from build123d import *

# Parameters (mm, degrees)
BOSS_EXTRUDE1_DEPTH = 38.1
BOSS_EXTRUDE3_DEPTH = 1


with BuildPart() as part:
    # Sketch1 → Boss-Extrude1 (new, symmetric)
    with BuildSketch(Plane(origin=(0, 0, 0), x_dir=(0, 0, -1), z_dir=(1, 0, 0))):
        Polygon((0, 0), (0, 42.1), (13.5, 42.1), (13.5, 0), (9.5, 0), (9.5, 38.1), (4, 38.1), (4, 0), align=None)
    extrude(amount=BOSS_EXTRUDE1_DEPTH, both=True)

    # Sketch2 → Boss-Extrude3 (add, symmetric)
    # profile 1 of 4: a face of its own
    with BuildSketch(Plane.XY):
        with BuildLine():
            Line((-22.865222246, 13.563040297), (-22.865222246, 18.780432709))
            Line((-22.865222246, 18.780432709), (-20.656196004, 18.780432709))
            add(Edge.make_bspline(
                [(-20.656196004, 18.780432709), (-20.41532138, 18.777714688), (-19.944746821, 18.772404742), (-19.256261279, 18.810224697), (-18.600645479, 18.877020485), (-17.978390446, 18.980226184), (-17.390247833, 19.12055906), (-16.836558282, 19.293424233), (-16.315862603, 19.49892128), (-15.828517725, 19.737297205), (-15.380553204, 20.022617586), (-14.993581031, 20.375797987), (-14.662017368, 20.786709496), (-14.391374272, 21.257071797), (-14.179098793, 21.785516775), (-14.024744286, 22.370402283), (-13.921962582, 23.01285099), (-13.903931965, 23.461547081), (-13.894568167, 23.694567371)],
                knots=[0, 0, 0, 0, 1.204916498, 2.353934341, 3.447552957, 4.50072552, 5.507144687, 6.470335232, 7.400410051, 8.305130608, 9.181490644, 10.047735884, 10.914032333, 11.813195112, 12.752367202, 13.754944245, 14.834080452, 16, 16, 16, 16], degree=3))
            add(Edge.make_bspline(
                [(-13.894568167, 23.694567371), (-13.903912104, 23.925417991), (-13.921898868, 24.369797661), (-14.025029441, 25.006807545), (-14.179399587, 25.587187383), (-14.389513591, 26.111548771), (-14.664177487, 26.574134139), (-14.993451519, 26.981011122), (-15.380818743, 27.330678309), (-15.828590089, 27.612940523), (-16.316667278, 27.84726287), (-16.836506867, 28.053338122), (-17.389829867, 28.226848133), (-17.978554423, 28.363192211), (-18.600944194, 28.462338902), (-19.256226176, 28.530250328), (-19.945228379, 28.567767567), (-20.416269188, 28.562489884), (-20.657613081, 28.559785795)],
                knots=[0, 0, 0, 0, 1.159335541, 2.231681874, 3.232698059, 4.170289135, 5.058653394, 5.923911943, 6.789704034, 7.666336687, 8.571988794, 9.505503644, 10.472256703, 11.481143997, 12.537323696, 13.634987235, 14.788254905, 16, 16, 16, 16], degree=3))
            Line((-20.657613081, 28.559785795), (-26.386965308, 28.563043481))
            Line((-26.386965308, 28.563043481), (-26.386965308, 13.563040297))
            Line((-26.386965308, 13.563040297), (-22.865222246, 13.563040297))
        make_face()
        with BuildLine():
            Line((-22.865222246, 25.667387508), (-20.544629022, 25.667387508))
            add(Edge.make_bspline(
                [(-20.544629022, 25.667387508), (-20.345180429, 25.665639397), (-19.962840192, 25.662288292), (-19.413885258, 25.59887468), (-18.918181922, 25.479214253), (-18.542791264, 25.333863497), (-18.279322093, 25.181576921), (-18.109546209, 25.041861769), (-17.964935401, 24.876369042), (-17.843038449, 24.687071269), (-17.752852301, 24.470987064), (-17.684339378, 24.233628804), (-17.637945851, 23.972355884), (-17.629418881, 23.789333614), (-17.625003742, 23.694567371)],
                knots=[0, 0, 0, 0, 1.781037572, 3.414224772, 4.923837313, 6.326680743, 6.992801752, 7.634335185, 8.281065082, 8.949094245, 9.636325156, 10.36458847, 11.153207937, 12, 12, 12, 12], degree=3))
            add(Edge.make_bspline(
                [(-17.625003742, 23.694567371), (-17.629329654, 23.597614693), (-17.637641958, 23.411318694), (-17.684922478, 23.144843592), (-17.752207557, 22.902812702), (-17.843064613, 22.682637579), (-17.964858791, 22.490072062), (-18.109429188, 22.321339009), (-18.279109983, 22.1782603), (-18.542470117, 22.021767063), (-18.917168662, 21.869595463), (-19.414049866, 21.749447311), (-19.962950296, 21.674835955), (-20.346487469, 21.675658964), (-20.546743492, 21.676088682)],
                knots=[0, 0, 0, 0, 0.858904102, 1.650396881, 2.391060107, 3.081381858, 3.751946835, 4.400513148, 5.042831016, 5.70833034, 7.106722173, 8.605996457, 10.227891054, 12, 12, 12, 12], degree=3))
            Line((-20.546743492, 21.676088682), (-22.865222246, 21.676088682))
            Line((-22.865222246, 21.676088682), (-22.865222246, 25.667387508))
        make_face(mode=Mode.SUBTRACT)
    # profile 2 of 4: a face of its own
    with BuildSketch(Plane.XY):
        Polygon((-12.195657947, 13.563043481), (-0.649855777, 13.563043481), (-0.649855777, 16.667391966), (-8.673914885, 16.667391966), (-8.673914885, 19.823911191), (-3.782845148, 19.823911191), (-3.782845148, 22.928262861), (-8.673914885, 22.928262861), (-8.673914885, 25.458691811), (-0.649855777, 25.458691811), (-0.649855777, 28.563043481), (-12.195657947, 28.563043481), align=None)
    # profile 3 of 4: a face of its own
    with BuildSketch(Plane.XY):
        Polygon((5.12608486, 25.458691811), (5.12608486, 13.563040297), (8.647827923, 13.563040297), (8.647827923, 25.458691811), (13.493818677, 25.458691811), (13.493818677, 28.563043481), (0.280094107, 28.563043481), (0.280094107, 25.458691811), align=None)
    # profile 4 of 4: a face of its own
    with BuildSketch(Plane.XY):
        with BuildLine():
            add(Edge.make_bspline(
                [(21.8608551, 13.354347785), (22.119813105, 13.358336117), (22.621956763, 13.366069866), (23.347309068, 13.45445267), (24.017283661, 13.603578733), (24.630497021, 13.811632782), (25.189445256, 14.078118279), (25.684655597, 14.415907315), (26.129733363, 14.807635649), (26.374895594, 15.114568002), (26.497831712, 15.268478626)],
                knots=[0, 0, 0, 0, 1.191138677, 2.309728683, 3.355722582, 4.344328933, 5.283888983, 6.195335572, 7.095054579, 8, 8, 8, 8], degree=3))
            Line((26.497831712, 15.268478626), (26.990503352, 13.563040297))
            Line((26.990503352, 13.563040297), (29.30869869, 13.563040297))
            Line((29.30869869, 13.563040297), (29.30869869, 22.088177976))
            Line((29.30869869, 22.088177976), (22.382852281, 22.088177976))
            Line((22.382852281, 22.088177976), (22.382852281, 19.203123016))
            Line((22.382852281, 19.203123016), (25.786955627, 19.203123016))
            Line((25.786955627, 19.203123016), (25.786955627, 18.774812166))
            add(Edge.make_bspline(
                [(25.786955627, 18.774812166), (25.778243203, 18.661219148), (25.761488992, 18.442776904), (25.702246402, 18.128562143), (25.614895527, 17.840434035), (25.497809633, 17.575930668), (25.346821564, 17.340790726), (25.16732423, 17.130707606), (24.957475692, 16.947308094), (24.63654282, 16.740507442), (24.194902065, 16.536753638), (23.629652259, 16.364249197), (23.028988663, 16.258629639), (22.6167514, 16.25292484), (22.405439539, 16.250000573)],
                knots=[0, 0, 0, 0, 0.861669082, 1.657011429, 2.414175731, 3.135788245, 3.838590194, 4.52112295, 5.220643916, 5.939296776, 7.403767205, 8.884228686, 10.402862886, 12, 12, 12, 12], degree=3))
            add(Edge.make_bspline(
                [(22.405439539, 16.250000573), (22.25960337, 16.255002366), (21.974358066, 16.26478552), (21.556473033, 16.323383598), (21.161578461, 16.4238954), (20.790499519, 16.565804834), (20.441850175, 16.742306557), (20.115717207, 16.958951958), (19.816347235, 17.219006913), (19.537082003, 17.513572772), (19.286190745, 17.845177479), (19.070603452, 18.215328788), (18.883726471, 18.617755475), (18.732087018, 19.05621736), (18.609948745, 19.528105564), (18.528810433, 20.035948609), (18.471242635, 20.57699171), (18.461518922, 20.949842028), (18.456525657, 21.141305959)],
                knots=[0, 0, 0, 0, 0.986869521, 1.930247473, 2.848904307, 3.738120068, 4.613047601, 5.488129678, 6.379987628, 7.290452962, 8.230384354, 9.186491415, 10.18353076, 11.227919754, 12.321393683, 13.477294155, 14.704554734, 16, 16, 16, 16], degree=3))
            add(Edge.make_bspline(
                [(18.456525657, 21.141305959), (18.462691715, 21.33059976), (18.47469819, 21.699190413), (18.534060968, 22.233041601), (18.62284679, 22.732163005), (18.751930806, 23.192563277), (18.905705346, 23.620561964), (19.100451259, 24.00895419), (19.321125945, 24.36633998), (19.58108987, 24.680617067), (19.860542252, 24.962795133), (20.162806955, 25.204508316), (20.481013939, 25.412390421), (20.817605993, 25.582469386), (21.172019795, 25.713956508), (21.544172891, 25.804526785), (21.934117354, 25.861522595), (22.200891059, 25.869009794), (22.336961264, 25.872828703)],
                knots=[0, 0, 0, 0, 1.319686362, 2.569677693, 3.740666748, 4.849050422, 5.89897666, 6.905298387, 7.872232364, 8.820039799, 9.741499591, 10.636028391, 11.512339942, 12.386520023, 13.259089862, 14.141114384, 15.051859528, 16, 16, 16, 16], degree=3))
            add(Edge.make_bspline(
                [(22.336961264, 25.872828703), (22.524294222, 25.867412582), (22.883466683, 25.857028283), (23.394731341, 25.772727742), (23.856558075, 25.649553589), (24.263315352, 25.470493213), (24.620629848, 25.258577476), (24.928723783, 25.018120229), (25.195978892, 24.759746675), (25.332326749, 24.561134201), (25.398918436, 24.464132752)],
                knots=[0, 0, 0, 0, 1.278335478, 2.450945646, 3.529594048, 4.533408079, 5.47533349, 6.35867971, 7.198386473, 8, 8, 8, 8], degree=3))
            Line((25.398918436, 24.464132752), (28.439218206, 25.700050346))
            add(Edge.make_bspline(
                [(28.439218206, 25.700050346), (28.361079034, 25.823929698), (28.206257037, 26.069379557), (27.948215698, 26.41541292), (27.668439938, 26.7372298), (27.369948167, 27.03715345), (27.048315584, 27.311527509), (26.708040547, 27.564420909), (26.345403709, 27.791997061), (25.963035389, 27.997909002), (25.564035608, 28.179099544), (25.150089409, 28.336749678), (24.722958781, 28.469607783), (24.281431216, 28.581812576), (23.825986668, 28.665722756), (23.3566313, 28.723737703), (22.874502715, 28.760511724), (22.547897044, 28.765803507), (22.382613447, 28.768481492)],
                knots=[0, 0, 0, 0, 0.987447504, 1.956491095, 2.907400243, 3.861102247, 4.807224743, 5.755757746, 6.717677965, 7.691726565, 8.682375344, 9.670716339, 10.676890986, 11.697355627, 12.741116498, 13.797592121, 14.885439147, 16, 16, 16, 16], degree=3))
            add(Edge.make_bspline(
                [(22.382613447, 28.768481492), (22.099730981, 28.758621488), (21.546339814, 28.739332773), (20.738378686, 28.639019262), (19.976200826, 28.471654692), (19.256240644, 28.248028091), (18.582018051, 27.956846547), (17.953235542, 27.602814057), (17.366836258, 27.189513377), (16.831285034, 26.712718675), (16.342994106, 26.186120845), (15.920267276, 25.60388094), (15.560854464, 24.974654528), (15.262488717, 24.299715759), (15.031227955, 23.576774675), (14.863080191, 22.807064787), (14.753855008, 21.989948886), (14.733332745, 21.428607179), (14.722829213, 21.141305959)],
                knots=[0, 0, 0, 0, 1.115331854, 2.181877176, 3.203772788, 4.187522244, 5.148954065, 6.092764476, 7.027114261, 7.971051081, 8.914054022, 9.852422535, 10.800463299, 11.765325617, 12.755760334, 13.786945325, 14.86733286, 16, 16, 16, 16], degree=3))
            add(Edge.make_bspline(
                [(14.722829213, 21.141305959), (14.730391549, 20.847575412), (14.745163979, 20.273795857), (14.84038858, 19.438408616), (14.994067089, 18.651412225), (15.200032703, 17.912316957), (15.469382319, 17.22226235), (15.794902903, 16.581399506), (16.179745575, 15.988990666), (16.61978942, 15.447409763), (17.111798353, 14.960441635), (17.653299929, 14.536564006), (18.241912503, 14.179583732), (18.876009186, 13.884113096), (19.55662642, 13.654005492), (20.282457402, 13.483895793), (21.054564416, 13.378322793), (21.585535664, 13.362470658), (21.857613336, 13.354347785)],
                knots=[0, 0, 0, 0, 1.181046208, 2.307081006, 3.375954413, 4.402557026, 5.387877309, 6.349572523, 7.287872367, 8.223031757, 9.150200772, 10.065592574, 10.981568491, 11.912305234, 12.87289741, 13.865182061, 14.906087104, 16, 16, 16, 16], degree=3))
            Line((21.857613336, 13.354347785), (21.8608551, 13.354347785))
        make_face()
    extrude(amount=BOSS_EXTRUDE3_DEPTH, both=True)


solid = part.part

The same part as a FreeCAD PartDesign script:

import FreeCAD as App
import Part
import Sketcher
from FreeCAD import Vector

doc = App.newDocument("Part")
body = doc.addObject("PartDesign::Body", "Body")

sketch1 = body.newObject("Sketcher::SketchObject", "Sketch")
sketch1.AttachmentSupport = (doc.getObject("YZ_Plane"), [""])
sketch1.MapMode = "FlatFace"
sketch1.addGeometry(Part.LineSegment(Vector(42.1, 0, 0), Vector(0, 0, 0)), False)
sketch1.addGeometry(Part.LineSegment(Vector(0, 0, 0), Vector(0, -4, 0)), False)
sketch1.addGeometry(Part.LineSegment(Vector(0, -4, 0), Vector(38.1, -4, 0)), False)
sketch1.addGeometry(Part.LineSegment(Vector(38.1, -4, 0), Vector(38.1, -9.5, 0)), False)
sketch1.addGeometry(Part.LineSegment(Vector(38.1, -9.5, 0), Vector(0, -9.5, 0)), False)
sketch1.addGeometry(Part.LineSegment(Vector(0, -9.5, 0), Vector(0, -13.5, 0)), False)
sketch1.addGeometry(Part.LineSegment(Vector(0, -13.5, 0), Vector(42.1, -13.5, 0)), False)
sketch1.addGeometry(Part.LineSegment(Vector(42.1, -13.5, 0), Vector(42.1, 0, 0)), False)
sketch1.addConstraint(Sketcher.Constraint("Coincident", 0, 2, 1, 1))
sketch1.addConstraint(Sketcher.Constraint("Coincident", 1, 2, 2, 1))
sketch1.addConstraint(Sketcher.Constraint("Coincident", 2, 2, 3, 1))
sketch1.addConstraint(Sketcher.Constraint("Coincident", 3, 2, 4, 1))
sketch1.addConstraint(Sketcher.Constraint("Coincident", 4, 2, 5, 1))
sketch1.addConstraint(Sketcher.Constraint("Coincident", 5, 2, 6, 1))
sketch1.addConstraint(Sketcher.Constraint("Coincident", 6, 2, 7, 1))
sketch1.addConstraint(Sketcher.Constraint("Coincident", 7, 2, 0, 1))
sketch1.addConstraint(Sketcher.Constraint("Horizontal", 0))
sketch1.addConstraint(Sketcher.Constraint("Vertical", 1))
sketch1.addConstraint(Sketcher.Constraint("Horizontal", 2))
sketch1.addConstraint(Sketcher.Constraint("Vertical", 3))
sketch1.addConstraint(Sketcher.Constraint("Horizontal", 4))
sketch1.addConstraint(Sketcher.Constraint("Vertical", 5))
sketch1.addConstraint(Sketcher.Constraint("Horizontal", 6))
sketch1.addConstraint(Sketcher.Constraint("Vertical", 7))
sketch1.addConstraint(Sketcher.Constraint("Coincident", 0, 2, -1, 1))
sketch1.addConstraint(Sketcher.Constraint("PointOnObject", 4, 2, -2))
sketch1.addConstraint(Sketcher.Constraint("Equal", 1, 5))
sketch1.addConstraint(Sketcher.Constraint("DistanceY", 1, 2, 1, 1, 4.0))
sketch1.addConstraint(Sketcher.Constraint("DistanceX", 0, 2, 0, 1, 42.1))
sketch1.addConstraint(Sketcher.Constraint("DistanceX", 2, 1, 2, 2, 38.1))
sketch1.addConstraint(Sketcher.Constraint("DistanceY", 3, 2, 3, 1, 5.5))
pad1 = body.newObject("PartDesign::Pad", "Pad")
pad1.Profile = sketch1
pad1.Length = 76.2
pad1.Midplane = True

sketch2 = body.newObject("Sketcher::SketchObject", "Sketch001")
sketch2.AttachmentSupport = (doc.getObject("XY_Plane"), [""])
sketch2.MapMode = "FlatFace"
sketch2.addGeometry(Part.LineSegment(Vector(-22.865222, 13.56304, 0), Vector(-22.865222, 18.780433, 0)), False)
sketch2.addGeometry(Part.LineSegment(Vector(-22.865222, 18.780433, 0), Vector(-20.656196, 18.780433, 0)), False)
sketch2.addGeometry(Part.BSplineCurve([Vector(-20.656196, 18.780433, 0), Vector(-20.415321, 18.777715, 0), Vector(-19.944747, 18.772405, 0), Vector(-19.256261, 18.810225, 0), Vector(-18.600645, 18.87702, 0), Vector(-17.97839, 18.980226, 0), Vector(-17.390248, 19.120559, 0), Vector(-16.836558, 19.293424, 0), Vector(-16.315863, 19.498921, 0), Vector(-15.828518, 19.737297, 0), Vector(-15.380553, 20.022618, 0), Vector(-14.993581, 20.375798, 0), Vector(-14.662017, 20.786709, 0), Vector(-14.391374, 21.257072, 0), Vector(-14.179099, 21.785517, 0), Vector(-14.024744, 22.370402, 0), Vector(-13.921963, 23.012851, 0), Vector(-13.903932, 23.461547, 0), Vector(-13.894568, 23.694567, 0)], [4, 1, 1, 1, 1, 1, 1, 1, 1, 1, 1, 1, 1, 1, 1, 1, 4], [0, 1.204916498, 2.353934341, 3.447552957, 4.50072552, 5.507144687, 6.470335232, 7.400410051, 8.305130608, 9.181490644, 10.047735884, 10.914032333, 11.813195112, 12.752367202, 13.754944245, 14.834080452, 16], False, 3, [1, 1, 1, 1, 1, 1, 1, 1, 1, 1, 1, 1, 1, 1, 1, 1, 1, 1, 1], False), False)
sketch2.addGeometry(Part.BSplineCurve([Vector(-13.894568, 23.694567, 0), Vector(-13.903912, 23.925418, 0), Vector(-13.921899, 24.369798, 0), Vector(-14.025029, 25.006808, 0), Vector(-14.1794, 25.587187, 0), Vector(-14.389514, 26.111549, 0), Vector(-14.664177, 26.574134, 0), Vector(-14.993452, 26.981011, 0), Vector(-15.380819, 27.330678, 0), Vector(-15.82859, 27.612941, 0), Vector(-16.316667, 27.847263, 0), Vector(-16.836507, 28.053338, 0), Vector(-17.38983, 28.226848, 0), Vector(-17.978554, 28.363192, 0), Vector(-18.600944, 28.462339, 0), Vector(-19.256226, 28.53025, 0), Vector(-19.945228, 28.567768, 0), Vector(-20.416269, 28.56249, 0), Vector(-20.657613, 28.559786, 0)], [4, 1, 1, 1, 1, 1, 1, 1, 1, 1, 1, 1, 1, 1, 1, 1, 4], [0, 1.159335541, 2.231681874, 3.232698059, 4.170289135, 5.058653394, 5.923911943, 6.789704034, 7.666336687, 8.571988794, 9.505503644, 10.472256703, 11.481143997, 12.537323696, 13.634987235, 14.788254905, 16], False, 3, [1, 1, 1, 1, 1, 1, 1, 1, 1, 1, 1, 1, 1, 1, 1, 1, 1, 1, 1], False), False)
sketch2.addGeometry(Part.LineSegment(Vector(-20.657613, 28.559786, 0), Vector(-26.386965, 28.563043, 0)), False)
sketch2.addGeometry(Part.LineSegment(Vector(-26.386965, 28.563043, 0), Vector(-26.386965, 13.56304, 0)), False)
sketch2.addGeometry(Part.LineSegment(Vector(-26.386965, 13.56304, 0), Vector(-22.865222, 13.56304, 0)), False)
sketch2.addGeometry(Part.LineSegment(Vector(-22.865222, 21.676089, 0), Vector(-22.865222, 25.667388, 0)), False)
sketch2.addGeometry(Part.LineSegment(Vector(-22.865222, 25.667388, 0), Vector(-20.544629, 25.667388, 0)), False)
sketch2.addGeometry(Part.BSplineCurve([Vector(-20.544629, 25.667388, 0), Vector(-20.34518, 25.665639, 0), Vector(-19.96284, 25.662288, 0), Vector(-19.413885, 25.598875, 0), Vector(-18.918182, 25.479214, 0), Vector(-18.542791, 25.333863, 0), Vector(-18.279322, 25.181577, 0), Vector(-18.109546, 25.041862, 0), Vector(-17.964935, 24.876369, 0), Vector(-17.843038, 24.687071, 0), Vector(-17.752852, 24.470987, 0), Vector(-17.684339, 24.233629, 0), Vector(-17.637946, 23.972356, 0), Vector(-17.629419, 23.789334, 0), Vector(-17.625004, 23.694567, 0)], [4, 1, 1, 1, 1, 1, 1, 1, 1, 1, 1, 1, 4], [0, 1.781037572, 3.414224772, 4.923837313, 6.326680743, 6.992801752, 7.634335185, 8.281065082, 8.949094245, 9.636325156, 10.36458847, 11.153207937, 12], False, 3, [1, 1, 1, 1, 1, 1, 1, 1, 1, 1, 1, 1, 1, 1, 1], False), False)
sketch2.addGeometry(Part.BSplineCurve([Vector(-17.625004, 23.694567, 0), Vector(-17.62933, 23.597615, 0), Vector(-17.637642, 23.411319, 0), Vector(-17.684922, 23.144844, 0), Vector(-17.752208, 22.902813, 0), Vector(-17.843065, 22.682638, 0), Vector(-17.964859, 22.490072, 0), Vector(-18.109429, 22.321339, 0), Vector(-18.27911, 22.17826, 0), Vector(-18.54247, 22.021767, 0), Vector(-18.917169, 21.869595, 0), Vector(-19.41405, 21.749447, 0), Vector(-19.96295, 21.674836, 0), Vector(-20.346487, 21.675659, 0), Vector(-20.546743, 21.676089, 0)], [4, 1, 1, 1, 1, 1, 1, 1, 1, 1, 1, 1, 4], [0, 0.858904102, 1.650396881, 2.391060107, 3.081381858, 3.751946835, 4.400513148, 5.042831016, 5.70833034, 7.106722173, 8.605996457, 10.227891054, 12], False, 3, [1, 1, 1, 1, 1, 1, 1, 1, 1, 1, 1, 1, 1, 1, 1], False), False)
sketch2.addGeometry(Part.LineSegment(Vector(-20.546743, 21.676089, 0), Vector(-22.865222, 21.676089, 0)), False)
sketch2.addGeometry(Part.LineSegment(Vector(-12.195658, 13.563043, 0), Vector(-0.649856, 13.563043, 0)), False)
sketch2.addGeometry(Part.LineSegment(Vector(-0.649856, 13.563043, 0), Vector(-0.649856, 16.667392, 0)), False)
sketch2.addGeometry(Part.LineSegment(Vector(-0.649856, 16.667392, 0), Vector(-8.673915, 16.667392, 0)), False)
sketch2.addGeometry(Part.LineSegment(Vector(-8.673915, 16.667392, 0), Vector(-8.673915, 19.823911, 0)), False)
sketch2.addGeometry(Part.LineSegment(Vector(-8.673915, 19.823911, 0), Vector(-3.782845, 19.823911, 0)), False)
sketch2.addGeometry(Part.LineSegment(Vector(-3.782845, 19.823911, 0), Vector(-3.782845, 22.928263, 0)), False)
sketch2.addGeometry(Part.LineSegment(Vector(-3.782845, 22.928263, 0), Vector(-8.673915, 22.928263, 0)), False)
sketch2.addGeometry(Part.LineSegment(Vector(-8.673915, 22.928263, 0), Vector(-8.673915, 25.458692, 0)), False)
sketch2.addGeometry(Part.LineSegment(Vector(-8.673915, 25.458692, 0), Vector(-0.649856, 25.458692, 0)), False)
sketch2.addGeometry(Part.LineSegment(Vector(-0.649856, 25.458692, 0), Vector(-0.649856, 28.563043, 0)), False)
sketch2.addGeometry(Part.LineSegment(Vector(-0.649856, 28.563043, 0), Vector(-12.195658, 28.563043, 0)), False)
sketch2.addGeometry(Part.LineSegment(Vector(-12.195658, 28.563043, 0), Vector(-12.195658, 13.563043, 0)), False)
sketch2.addGeometry(Part.LineSegment(Vector(5.126085, 25.458692, 0), Vector(5.126085, 13.56304, 0)), False)
sketch2.addGeometry(Part.LineSegment(Vector(5.126085, 13.56304, 0), Vector(8.647828, 13.56304, 0)), False)
sketch2.addGeometry(Part.LineSegment(Vector(8.647828, 13.56304, 0), Vector(8.647828, 25.458692, 0)), False)
sketch2.addGeometry(Part.LineSegment(Vector(8.647828, 25.458692, 0), Vector(13.493819, 25.458692, 0)), False)
sketch2.addGeometry(Part.LineSegment(Vector(13.493819, 25.458692, 0), Vector(13.493819, 28.563043, 0)), False)
sketch2.addGeometry(Part.LineSegment(Vector(13.493819, 28.563043, 0), Vector(0.280094, 28.563043, 0)), False)
sketch2.addGeometry(Part.LineSegment(Vector(0.280094, 28.563043, 0), Vector(0.280094, 25.458692, 0)), False)
sketch2.addGeometry(Part.LineSegment(Vector(0.280094, 25.458692, 0), Vector(5.126085, 25.458692, 0)), False)
sketch2.addGeometry(Part.BSplineCurve([Vector(21.860855, 13.354348, 0), Vector(22.119813, 13.358336, 0), Vector(22.621957, 13.36607, 0), Vector(23.347309, 13.454453, 0), Vector(24.017284, 13.603579, 0), Vector(24.630497, 13.811633, 0), Vector(25.189445, 14.078118, 0), Vector(25.684656, 14.415907, 0), Vector(26.129733, 14.807636, 0), Vector(26.374896, 15.114568, 0), Vector(26.497832, 15.268479, 0)], [4, 1, 1, 1, 1, 1, 1, 1, 4], [0, 1.191138677, 2.309728683, 3.355722582, 4.344328933, 5.283888983, 6.195335572, 7.095054579, 8], False, 3, [1, 1, 1, 1, 1, 1, 1, 1, 1, 1, 1], False), False)
sketch2.addGeometry(Part.LineSegment(Vector(26.497832, 15.268479, 0), Vector(26.990503, 13.56304, 0)), False)
sketch2.addGeometry(Part.LineSegment(Vector(26.990503, 13.56304, 0), Vector(29.308699, 13.56304, 0)), False)
sketch2.addGeometry(Part.LineSegment(Vector(29.308699, 13.56304, 0), Vector(29.308699, 22.088178, 0)), False)
sketch2.addGeometry(Part.LineSegment(Vector(29.308699, 22.088178, 0), Vector(22.382852, 22.088178, 0)), False)
sketch2.addGeometry(Part.LineSegment(Vector(22.382852, 22.088178, 0), Vector(22.382852, 19.203123, 0)), False)
sketch2.addGeometry(Part.LineSegment(Vector(22.382852, 19.203123, 0), Vector(25.786956, 19.203123, 0)), False)
sketch2.addGeometry(Part.LineSegment(Vector(25.786956, 19.203123, 0), Vector(25.786956, 18.774812, 0)), False)
sketch2.addGeometry(Part.BSplineCurve([Vector(25.786956, 18.774812, 0), Vector(25.778243, 18.661219, 0), Vector(25.761489, 18.442777, 0), Vector(25.702246, 18.128562, 0), Vector(25.614896, 17.840434, 0), Vector(25.49781, 17.575931, 0), Vector(25.346822, 17.340791, 0), Vector(25.167324, 17.130708, 0), Vector(24.957476, 16.947308, 0), Vector(24.636543, 16.740507, 0), Vector(24.194902, 16.536754, 0), Vector(23.629652, 16.364249, 0), Vector(23.028989, 16.25863, 0), Vector(22.616751, 16.252925, 0), Vector(22.40544, 16.250001, 0)], [4, 1, 1, 1, 1, 1, 1, 1, 1, 1, 1, 1, 4], [0, 0.861669082, 1.657011429, 2.414175731, 3.135788245, 3.838590194, 4.52112295, 5.220643916, 5.939296776, 7.403767205, 8.884228686, 10.402862886, 12], False, 3, [1, 1, 1, 1, 1, 1, 1, 1, 1, 1, 1, 1, 1, 1, 1], False), False)
sketch2.addGeometry(Part.BSplineCurve([Vector(22.40544, 16.250001, 0), Vector(22.259603, 16.255002, 0), Vector(21.974358, 16.264786, 0), Vector(21.556473, 16.323384, 0), Vector(21.161578, 16.423895, 0), Vector(20.7905, 16.565805, 0), Vector(20.44185, 16.742307, 0), Vector(20.115717, 16.958952, 0), Vector(19.816347, 17.219007, 0), Vector(19.537082, 17.513573, 0), Vector(19.286191, 17.845177, 0), Vector(19.070603, 18.215329, 0), Vector(18.883726, 18.617755, 0), Vector(18.732087, 19.056217, 0), Vector(18.609949, 19.528106, 0), Vector(18.52881, 20.035949, 0), Vector(18.471243, 20.576992, 0), Vector(18.461519, 20.949842, 0), Vector(18.456526, 21.141306, 0)], [4, 1, 1, 1, 1, 1, 1, 1, 1, 1, 1, 1, 1, 1, 1, 1, 4], [0, 0.986869521, 1.930247473, 2.848904307, 3.738120068, 4.613047601, 5.488129678, 6.379987628, 7.290452962, 8.230384354, 9.186491415, 10.18353076, 11.227919754, 12.321393683, 13.477294155, 14.704554734, 16], False, 3, [1, 1, 1, 1, 1, 1, 1, 1, 1, 1, 1, 1, 1, 1, 1, 1, 1, 1, 1], False), False)
sketch2.addGeometry(Part.BSplineCurve([Vector(18.456526, 21.141306, 0), Vector(18.462692, 21.3306, 0), Vector(18.474698, 21.69919, 0), Vector(18.534061, 22.233042, 0), Vector(18.622847, 22.732163, 0), Vector(18.751931, 23.192563, 0), Vector(18.905705, 23.620562, 0), Vector(19.100451, 24.008954, 0), Vector(19.321126, 24.36634, 0), Vector(19.58109, 24.680617, 0), Vector(19.860542, 24.962795, 0), Vector(20.162807, 25.204508, 0), Vector(20.481014, 25.41239, 0), Vector(20.817606, 25.582469, 0), Vector(21.17202, 25.713957, 0), Vector(21.544173, 25.804527, 0), Vector(21.934117, 25.861523, 0), Vector(22.200891, 25.86901, 0), Vector(22.336961, 25.872829, 0)], [4, 1, 1, 1, 1, 1, 1, 1, 1, 1, 1, 1, 1, 1, 1, 1, 4], [0, 1.319686362, 2.569677693, 3.740666748, 4.849050422, 5.89897666, 6.905298387, 7.872232364, 8.820039799, 9.741499591, 10.636028391, 11.512339942, 12.386520023, 13.259089862, 14.141114384, 15.051859528, 16], False, 3, [1, 1, 1, 1, 1, 1, 1, 1, 1, 1, 1, 1, 1, 1, 1, 1, 1, 1, 1], False), False)
sketch2.addGeometry(Part.BSplineCurve([Vector(22.336961, 25.872829, 0), Vector(22.524294, 25.867413, 0), Vector(22.883467, 25.857028, 0), Vector(23.394731, 25.772728, 0), Vector(23.856558, 25.649554, 0), Vector(24.263315, 25.470493, 0), Vector(24.62063, 25.258577, 0), Vector(24.928724, 25.01812, 0), Vector(25.195979, 24.759747, 0), Vector(25.332327, 24.561134, 0), Vector(25.398918, 24.464133, 0)], [4, 1, 1, 1, 1, 1, 1, 1, 4], [0, 1.278335478, 2.450945646, 3.529594048, 4.533408079, 5.47533349, 6.35867971, 7.198386473, 8], False, 3, [1, 1, 1, 1, 1, 1, 1, 1, 1, 1, 1], False), False)
sketch2.addGeometry(Part.LineSegment(Vector(25.398918, 24.464133, 0), Vector(28.439218, 25.70005, 0)), False)
sketch2.addGeometry(Part.BSplineCurve([Vector(28.439218, 25.70005, 0), Vector(28.361079, 25.82393, 0), Vector(28.206257, 26.06938, 0), Vector(27.948216, 26.415413, 0), Vector(27.66844, 26.73723, 0), Vector(27.369948, 27.037153, 0), Vector(27.048316, 27.311528, 0), Vector(26.708041, 27.564421, 0), Vector(26.345404, 27.791997, 0), Vector(25.963035, 27.997909, 0), Vector(25.564036, 28.1791, 0), Vector(25.150089, 28.33675, 0), Vector(24.722959, 28.469608, 0), Vector(24.281431, 28.581813, 0), Vector(23.825987, 28.665723, 0), Vector(23.356631, 28.723738, 0), Vector(22.874503, 28.760512, 0), Vector(22.547897, 28.765804, 0), Vector(22.382613, 28.768481, 0)], [4, 1, 1, 1, 1, 1, 1, 1, 1, 1, 1, 1, 1, 1, 1, 1, 4], [0, 0.987447504, 1.956491095, 2.907400243, 3.861102247, 4.807224743, 5.755757746, 6.717677965, 7.691726565, 8.682375344, 9.670716339, 10.676890986, 11.697355627, 12.741116498, 13.797592121, 14.885439147, 16], False, 3, [1, 1, 1, 1, 1, 1, 1, 1, 1, 1, 1, 1, 1, 1, 1, 1, 1, 1, 1], False), False)
sketch2.addGeometry(Part.BSplineCurve([Vector(22.382613, 28.768481, 0), Vector(22.099731, 28.758621, 0), Vector(21.54634, 28.739333, 0), Vector(20.738379, 28.639019, 0), Vector(19.976201, 28.471655, 0), Vector(19.256241, 28.248028, 0), Vector(18.582018, 27.956847, 0), Vector(17.953236, 27.602814, 0), Vector(17.366836, 27.189513, 0), Vector(16.831285, 26.712719, 0), Vector(16.342994, 26.186121, 0), Vector(15.920267, 25.603881, 0), Vector(15.560854, 24.974655, 0), Vector(15.262489, 24.299716, 0), Vector(15.031228, 23.576775, 0), Vector(14.86308, 22.807065, 0), Vector(14.753855, 21.989949, 0), Vector(14.733333, 21.428607, 0), Vector(14.722829, 21.141306, 0)], [4, 1, 1, 1, 1, 1, 1, 1, 1, 1, 1, 1, 1, 1, 1, 1, 4], [0, 1.115331854, 2.181877176, 3.203772788, 4.187522244, 5.148954065, 6.092764476, 7.027114261, 7.971051081, 8.914054022, 9.852422535, 10.800463299, 11.765325617, 12.755760334, 13.786945325, 14.86733286, 16], False, 3, [1, 1, 1, 1, 1, 1, 1, 1, 1, 1, 1, 1, 1, 1, 1, 1, 1, 1, 1], False), False)
sketch2.addGeometry(Part.BSplineCurve([Vector(14.722829, 21.141306, 0), Vector(14.730392, 20.847575, 0), Vector(14.745164, 20.273796, 0), Vector(14.840389, 19.438409, 0), Vector(14.994067, 18.651412, 0), Vector(15.200033, 17.912317, 0), Vector(15.469382, 17.222262, 0), Vector(15.794903, 16.5814, 0), Vector(16.179746, 15.988991, 0), Vector(16.619789, 15.44741, 0), Vector(17.111798, 14.960442, 0), Vector(17.6533, 14.536564, 0), Vector(18.241913, 14.179584, 0), Vector(18.876009, 13.884113, 0), Vector(19.556626, 13.654005, 0), Vector(20.282457, 13.483896, 0), Vector(21.054564, 13.378323, 0), Vector(21.585536, 13.362471, 0), Vector(21.857613, 13.354348, 0)], [4, 1, 1, 1, 1, 1, 1, 1, 1, 1, 1, 1, 1, 1, 1, 1, 4], [0, 1.181046208, 2.307081006, 3.375954413, 4.402557026, 5.387877309, 6.349572523, 7.287872367, 8.223031757, 9.150200772, 10.065592574, 10.981568491, 11.912305234, 12.87289741, 13.865182061, 14.906087104, 16], False, 3, [1, 1, 1, 1, 1, 1, 1, 1, 1, 1, 1, 1, 1, 1, 1, 1, 1, 1, 1], False), False)
sketch2.addGeometry(Part.LineSegment(Vector(21.857613, 13.354348, 0), Vector(21.860855, 13.354348, 0)), False)
sketch2.addConstraint(Sketcher.Constraint("Block", 2))
sketch2.addConstraint(Sketcher.Constraint("Block", 3))
sketch2.addConstraint(Sketcher.Constraint("Block", 9))
sketch2.addConstraint(Sketcher.Constraint("Block", 10))
sketch2.addConstraint(Sketcher.Constraint("Block", 32))
sketch2.addConstraint(Sketcher.Constraint("Block", 40))
sketch2.addConstraint(Sketcher.Constraint("Block", 41))
sketch2.addConstraint(Sketcher.Constraint("Block", 42))
sketch2.addConstraint(Sketcher.Constraint("Block", 43))
sketch2.addConstraint(Sketcher.Constraint("Block", 45))
sketch2.addConstraint(Sketcher.Constraint("Block", 46))
sketch2.addConstraint(Sketcher.Constraint("Block", 47))
sketch2.addConstraint(Sketcher.Constraint("Coincident", 0, 2, 1, 1))
sketch2.addConstraint(Sketcher.Constraint("Coincident", 1, 2, 2, 1))
sketch2.addConstraint(Sketcher.Constraint("Coincident", 3, 2, 4, 1))
sketch2.addConstraint(Sketcher.Constraint("Coincident", 4, 2, 5, 1))
sketch2.addConstraint(Sketcher.Constraint("Coincident", 5, 2, 6, 1))
sketch2.addConstraint(Sketcher.Constraint("Coincident", 6, 2, 0, 1))
sketch2.addConstraint(Sketcher.Constraint("Coincident", 7, 2, 8, 1))
sketch2.addConstraint(Sketcher.Constraint("Coincident", 8, 2, 9, 1))
sketch2.addConstraint(Sketcher.Constraint("Coincident", 10, 2, 11, 1))
sketch2.addConstraint(Sketcher.Constraint("Coincident", 11, 2, 7, 1))
sketch2.addConstraint(Sketcher.Constraint("Coincident", 12, 2, 13, 1))
sketch2.addConstraint(Sketcher.Constraint("Coincident", 13, 2, 14, 1))
sketch2.addConstraint(Sketcher.Constraint("Coincident", 14, 2, 15, 1))
sketch2.addConstraint(Sketcher.Constraint("Coincident", 15, 2, 16, 1))
sketch2.addConstraint(Sketcher.Constraint("Coincident", 16, 2, 17, 1))
sketch2.addConstraint(Sketcher.Constraint("Coincident", 17, 2, 18, 1))
sketch2.addConstraint(Sketcher.Constraint("Coincident", 18, 2, 19, 1))
sketch2.addConstraint(Sketcher.Constraint("Coincident", 19, 2, 20, 1))
sketch2.addConstraint(Sketcher.Constraint("Coincident", 20, 2, 21, 1))
sketch2.addConstraint(Sketcher.Constraint("Coincident", 21, 2, 22, 1))
sketch2.addConstraint(Sketcher.Constraint("Coincident", 22, 2, 23, 1))
sketch2.addConstraint(Sketcher.Constraint("Coincident", 23, 2, 12, 1))
sketch2.addConstraint(Sketcher.Constraint("Coincident", 24, 2, 25, 1))
sketch2.addConstraint(Sketcher.Constraint("Coincident", 25, 2, 26, 1))
sketch2.addConstraint(Sketcher.Constraint("Coincident", 26, 2, 27, 1))
sketch2.addConstraint(Sketcher.Constraint("Coincident", 27, 2, 28, 1))
sketch2.addConstraint(Sketcher.Constraint("Coincident", 28, 2, 29, 1))
sketch2.addConstraint(Sketcher.Constraint("Coincident", 29, 2, 30, 1))
sketch2.addConstraint(Sketcher.Constraint("Coincident", 30, 2, 31, 1))
sketch2.addConstraint(Sketcher.Constraint("Coincident", 31, 2, 24, 1))
sketch2.addConstraint(Sketcher.Constraint("Coincident", 32, 2, 33, 1))
sketch2.addConstraint(Sketcher.Constraint("Coincident", 33, 2, 34, 1))
sketch2.addConstraint(Sketcher.Constraint("Coincident", 34, 2, 35, 1))
sketch2.addConstraint(Sketcher.Constraint("Coincident", 35, 2, 36, 1))
sketch2.addConstraint(Sketcher.Constraint("Coincident", 36, 2, 37, 1))
sketch2.addConstraint(Sketcher.Constraint("Coincident", 37, 2, 38, 1))
sketch2.addConstraint(Sketcher.Constraint("Coincident", 38, 2, 39, 1))
sketch2.addConstraint(Sketcher.Constraint("Coincident", 39, 2, 40, 1))
sketch2.addConstraint(Sketcher.Constraint("Coincident", 43, 2, 44, 1))
sketch2.addConstraint(Sketcher.Constraint("Coincident", 44, 2, 45, 1))
sketch2.addConstraint(Sketcher.Constraint("Coincident", 47, 2, 48, 1))
sketch2.addConstraint(Sketcher.Constraint("Coincident", 48, 2, 32, 1))
sketch2.addConstraint(Sketcher.Constraint("Vertical", 0))
sketch2.addConstraint(Sketcher.Constraint("Horizontal", 1))
sketch2.addConstraint(Sketcher.Constraint("Vertical", 5))
sketch2.addConstraint(Sketcher.Constraint("Horizontal", 6))
sketch2.addConstraint(Sketcher.Constraint("Vertical", 7))
sketch2.addConstraint(Sketcher.Constraint("Horizontal", 8))
sketch2.addConstraint(Sketcher.Constraint("Horizontal", 11))
sketch2.addConstraint(Sketcher.Constraint("Horizontal", 12))
sketch2.addConstraint(Sketcher.Constraint("Vertical", 13))
sketch2.addConstraint(Sketcher.Constraint("Horizontal", 14))
sketch2.addConstraint(Sketcher.Constraint("Vertical", 15))
sketch2.addConstraint(Sketcher.Constraint("Horizontal", 16))
sketch2.addConstraint(Sketcher.Constraint("Vertical", 17))
sketch2.addConstraint(Sketcher.Constraint("Horizontal", 18))
sketch2.addConstraint(Sketcher.Constraint("Vertical", 19))
sketch2.addConstraint(Sketcher.Constraint("Horizontal", 20))
sketch2.addConstraint(Sketcher.Constraint("Vertical", 21))
sketch2.addConstraint(Sketcher.Constraint("Horizontal", 22))
sketch2.addConstraint(Sketcher.Constraint("Vertical", 23))
sketch2.addConstraint(Sketcher.Constraint("Vertical", 24))
sketch2.addConstraint(Sketcher.Constraint("Horizontal", 25))
sketch2.addConstraint(Sketcher.Constraint("Vertical", 26))
sketch2.addConstraint(Sketcher.Constraint("Horizontal", 27))
sketch2.addConstraint(Sketcher.Constraint("Vertical", 28))
sketch2.addConstraint(Sketcher.Constraint("Horizontal", 29))
sketch2.addConstraint(Sketcher.Constraint("Vertical", 30))
sketch2.addConstraint(Sketcher.Constraint("Horizontal", 31))
sketch2.addConstraint(Sketcher.Constraint("Horizontal", 34))
sketch2.addConstraint(Sketcher.Constraint("Vertical", 35))
sketch2.addConstraint(Sketcher.Constraint("Horizontal", 36))
sketch2.addConstraint(Sketcher.Constraint("Vertical", 37))
sketch2.addConstraint(Sketcher.Constraint("Horizontal", 38))
sketch2.addConstraint(Sketcher.Constraint("Vertical", 39))
sketch2.addConstraint(Sketcher.Constraint("Horizontal", 4, 2, 21, 2))
sketch2.addConstraint(Sketcher.Constraint("Horizontal", 6, 2, 24, 2))
sketch2.addConstraint(Sketcher.Constraint("Horizontal", 20, 2, 26, 2))
sketch2.addConstraint(Sketcher.Constraint("Horizontal", 22, 2, 28, 2))
sketch2.addConstraint(Sketcher.Constraint("Horizontal", 27, 2, 30, 2))
sketch2.addConstraint(Sketcher.Constraint("Horizontal", 25, 2, 33, 2))
sketch2.addConstraint(Sketcher.Constraint("Vertical", 6, 2, 7, 2))
sketch2.addConstraint(Sketcher.Constraint("Vertical", 15, 2, 18, 2))
sketch2.addConstraint(Sketcher.Constraint("Vertical", 13, 2, 20, 2))
sketch2.addConstraint(Sketcher.Constraint("Equal", 6, 25))
sketch2.addConstraint(Sketcher.Constraint("Equal", 27, 31))
sketch2.addConstraint(Sketcher.Constraint("Equal", 17, 21))
sketch2.addConstraint(Sketcher.Constraint("DistanceY", 23, 2, 23, 1, 15.0))
sketch2.addConstraint(Sketcher.Constraint("DistanceX", 11, 2, 11, 1, 2.318479))
sketch2.addConstraint(Sketcher.Constraint("DistanceX", 14, 2, 14, 1, 8.024059))
sketch2.addConstraint(Sketcher.Constraint("DistanceX", 16, 1, 16, 2, 4.89107))
sketch2.addConstraint(Sketcher.Constraint("DistanceX", 27, 1, 27, 2, 4.845991))
sketch2.addConstraint(Sketcher.Constraint("DistanceY", 13, 1, 13, 2, 3.104348))
sketch2.addConstraint(Sketcher.Constraint("DistanceY", 15, 1, 15, 2, 3.156519))
sketch2.addConstraint(Sketcher.Constraint("DistanceY", 17, 1, 17, 2, 3.104352))
sketch2.addConstraint(Sketcher.Constraint("DistanceY", 24, 2, 24, 1, 11.895652))
sketch2.addConstraint(Sketcher.Constraint("DistanceY", 39, 2, 39, 1, 0.428311))
sketch2.addConstraint(Sketcher.Constraint("DistanceX", -1, 1, 34, 2, 29.308699))
sketch2.addConstraint(Sketcher.Constraint("DistanceX", 6, 1, 6, 2, 3.521743))
sketch2.addConstraint(Sketcher.Constraint("DistanceX", 12, 1, 12, 2, 11.545802))
sketch2.addConstraint(Sketcher.Constraint("DistanceX", 34, 1, 34, 2, 2.318195))
sketch2.addConstraint(Sketcher.Constraint("DistanceX", 36, 2, 36, 1, 6.925846))
sketch2.addConstraint(Sketcher.Constraint("DistanceY", 0, 1, 0, 2, 5.217392))
sketch2.addConstraint(Sketcher.Constraint("DistanceY", 35, 1, 35, 2, 8.525138))
sketch2.addConstraint(Sketcher.Constraint("DistanceX", -1, 1, 27, 2, 13.493819))
sketch2.addConstraint(Sketcher.Constraint("DistanceX", 1, 2, 12, 2, 20.00634))
pad2 = body.newObject("PartDesign::Pad", "Pad001")
pad2.Profile = sketch2
pad2.Length = 2
pad2.Midplane = True

doc.recompute()
